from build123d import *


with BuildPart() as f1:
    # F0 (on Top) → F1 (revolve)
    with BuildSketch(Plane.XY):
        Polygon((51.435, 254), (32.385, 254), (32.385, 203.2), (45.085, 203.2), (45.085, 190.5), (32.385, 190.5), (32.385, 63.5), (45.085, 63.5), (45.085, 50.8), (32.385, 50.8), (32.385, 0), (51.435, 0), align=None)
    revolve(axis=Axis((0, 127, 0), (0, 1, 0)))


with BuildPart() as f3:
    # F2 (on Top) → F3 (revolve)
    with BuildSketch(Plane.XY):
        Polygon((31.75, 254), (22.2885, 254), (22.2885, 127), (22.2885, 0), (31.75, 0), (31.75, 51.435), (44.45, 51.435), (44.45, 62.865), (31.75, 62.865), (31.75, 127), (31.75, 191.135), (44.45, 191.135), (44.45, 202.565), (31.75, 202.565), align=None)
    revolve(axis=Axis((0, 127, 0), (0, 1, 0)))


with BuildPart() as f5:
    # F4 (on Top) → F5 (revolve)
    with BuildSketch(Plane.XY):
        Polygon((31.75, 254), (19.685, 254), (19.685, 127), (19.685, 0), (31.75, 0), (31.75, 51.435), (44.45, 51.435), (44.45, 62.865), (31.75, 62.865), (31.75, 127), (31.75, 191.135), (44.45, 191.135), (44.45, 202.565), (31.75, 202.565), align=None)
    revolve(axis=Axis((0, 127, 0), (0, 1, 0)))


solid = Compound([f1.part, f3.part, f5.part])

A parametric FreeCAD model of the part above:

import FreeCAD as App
import Part
import Sketcher
Q = App.Units.Quantity


def add_polygon(sketch, points):
    """Adds a closed chain of lines whose ends are joined by coincident constraints."""
    first, n = sketch.GeometryCount, len(points)
    for a, b in zip(points, points[1:] + points[:1]):
        sketch.addGeometry(Part.LineSegment(App.Vector(*a, 0), App.Vector(*b, 0)), False)
    for i in range(n):
        sketch.addConstraint(Sketcher.Constraint("Coincident", first + i, 2, first + (i + 1) % n, 1))

doc = App.newDocument("Part")
body = doc.addObject("PartDesign::Body", "Body")

# Sketch on XY plane
sketch1 = doc.addObject("Sketcher::SketchObject", "Sketch")
body.addObject(sketch1)
sketch1.AttachmentSupport = (doc.XY_Plane, [""])
sketch1.MapMode = "FlatFace"
add_polygon(sketch1, [(51, 254), (32, 254), (32, 203), (45, 203), (45, 190), (32, 190), (32, 64), (45, 64), (45, 51), (32, 51), (32, 0), (51, 0)])  # lines 0-11
sketch1.addConstraint([
    Sketcher.Constraint("Horizontal", 0),
    Sketcher.Constraint("Vertical", 1),
    Sketcher.Constraint("Horizontal", 2),
    Sketcher.Constraint("Vertical", 3),
    Sketcher.Constraint("Horizontal", 4),
    Sketcher.Constraint("Vertical", 5),
    Sketcher.Constraint("Horizontal", 6),
    Sketcher.Constraint("Vertical", 7),
    Sketcher.Constraint("Horizontal", 8),
    Sketcher.Constraint("Vertical", 9),
    Sketcher.Constraint("Horizontal", 10),
    Sketcher.Constraint("Vertical", 11),
    Sketcher.Constraint("PointOnObject", 9, 2, -1),
    Sketcher.Constraint("Vertical", 1, 2, 4, 2),
    Sketcher.Constraint("Vertical", 3, 2, 6, 2),
    Sketcher.Constraint("Vertical", 5, 2, 8, 2),
    Sketcher.Constraint("Equal", 8, 3),
    Sketcher.Constraint("Equal", 3, 7),
    Sketcher.Constraint("Equal", 1, 9),
    Sketcher.Constraint("DistanceY", 1, 2, 1, 1, Q("2 in")),
    Sketcher.Constraint("DistanceY", 5, 2, 5, 1, Q("5 in")),
    Sketcher.Constraint("DistanceY", 11, 1, 11, 2, Q("10 in")),
    Sketcher.Constraint("DistanceX", 0, 2, 0, 1, Q("0.75 in")),
    Sketcher.Constraint("DistanceX", -1, 1, 0, 2, Q("1.275 in")),
])
revolution = doc.addObject("PartDesign::Revolution", "Revolution")
body.addObject(revolution)
revolution.Profile = sketch1
revolution.ReferenceAxis = (sketch1, ["V_Axis"])
revolution.Angle = 360
body2 = doc.addObject("PartDesign::Body", "Body001")

# Sketch on XY plane
sketch2 = doc.addObject("Sketcher::SketchObject", "Sketch001")
body2.addObject(sketch2)
sketch2.AttachmentSupport = (doc.getObject("XY_Plane001"), [""])
sketch2.MapMode = "FlatFace"
add_polygon(sketch2, [(32, 254), (22, 254), (22, 0), (32, 0), (32, 51), (44, 51), (44, 63), (32, 63), (32, 191), (44, 191), (44, 203), (32, 203)])  # lines 0-11
sketch2.addConstraint([
    Sketcher.Constraint("Horizontal", 0),
    Sketcher.Constraint("Vertical", 1),
    Sketcher.Constraint("Horizontal", 2),
    Sketcher.Constraint("Vertical", 3),
    Sketcher.Constraint("Horizontal", 4),
    Sketcher.Constraint("Vertical", 5),
    Sketcher.Constraint("Horizontal", 6),
    Sketcher.Constraint("Vertical", 7),
    Sketcher.Constraint("Horizontal", 8),
    Sketcher.Constraint("Vertical", 9),
    Sketcher.Constraint("Horizontal", 10),
    Sketcher.Constraint("Vertical", 11),
    Sketcher.Constraint("PointOnObject", 1, 2, -1),
    Sketcher.Constraint("Vertical", 3, 2, 6, 2),
    Sketcher.Constraint("Vertical", 5, 2, 8, 2),
    Sketcher.Constraint("Vertical", 7, 2, 10, 2),
    Sketcher.Constraint("Equal", 5, 9),
    Sketcher.Constraint("Equal", 3, 11),
    Sketcher.Constraint("DistanceY", 1, 2, 1, 1, Q("10 in")),
    Sketcher.Constraint("DistanceX", 4, 1, 4, 2, Q("0.5 in")),
    Sketcher.Constraint("DistanceY", 5, 1, 5, 2, Q("0.45 in")),
    Sketcher.Constraint("DistanceY", 7, 1, 7, 2, Q("5.05 in")),
    Sketcher.Constraint("DistanceX", -1, 1, 2, 2, Q("1.25 in")),
    Sketcher.Constraint("DistanceX", 0, 2, 0, 1, Q("0.3725 in")),
])
revolution2 = doc.addObject("PartDesign::Revolution", "Revolution001")
body2.addObject(revolution2)
revolution2.Profile = sketch2
revolution2.ReferenceAxis = (sketch2, ["V_Axis"])
revolution2.Angle = 360
body3 = doc.addObject("PartDesign::Body", "Body002")

# Sketch on XY plane
sketch3 = doc.addObject("Sketcher::SketchObject", "Sketch002")
body3.addObject(sketch3)
sketch3.AttachmentSupport = (doc.getObject("XY_Plane002"), [""])
sketch3.MapMode = "FlatFace"
add_polygon(sketch3, [(32, 254), (20, 254), (20, 0), (32, 0), (32, 51), (44, 51), (44, 63), (32, 63), (32, 191), (44, 191), (44, 203), (32, 203)])  # lines 0-11
sketch3.addConstraint([
    Sketcher.Constraint("Horizontal", 0),
    Sketcher.Constraint("Vertical", 1),
    Sketcher.Constraint("Horizontal", 2),
    Sketcher.Constraint("Vertical", 3),
    Sketcher.Constraint("Horizontal", 4),
    Sketcher.Constraint("Vertical", 5),
    Sketcher.Constraint("Horizontal", 6),
    Sketcher.Constraint("Vertical", 7),
    Sketcher.Constraint("Horizontal", 8),
    Sketcher.Constraint("Vertical", 9),
    Sketcher.Constraint("Horizontal", 10),
    Sketcher.Constraint("Vertical", 11),
    Sketcher.Constraint("PointOnObject", 1, 2, -1),
    Sketcher.Constraint("Vertical", 3, 2, 6, 2),
    Sketcher.Constraint("Vertical", 5, 2, 8, 2),
    Sketcher.Constraint("Vertical", 7, 2, 10, 2),
    Sketcher.Constraint("Equal", 5, 9),
    Sketcher.Constraint("Equal", 3, 11),
    Sketcher.Constraint("DistanceY", 1, 2, 1, 1, Q("10 in")),
    Sketcher.Constraint("DistanceX", 4, 1, 4, 2, Q("0.5 in")),
    Sketcher.Constraint("DistanceY", 5, 1, 5, 2, Q("0.45 in")),
    Sketcher.Constraint("DistanceY", 7, 1, 7, 2, Q("5.05 in")),
    Sketcher.Constraint("DistanceX", 0, 2, 0, 1, Q("0.475 in")),
    Sketcher.Constraint("DistanceX", -1, 1, 2, 2, Q("1.25 in")),
])
revolution3 = doc.addObject("PartDesign::Revolution", "Revolution002")
body3.addObject(revolution3)
revolution3.Profile = sketch3
revolution3.ReferenceAxis = (sketch3, ["V_Axis"])
revolution3.Angle = 360

doc.recompute()
